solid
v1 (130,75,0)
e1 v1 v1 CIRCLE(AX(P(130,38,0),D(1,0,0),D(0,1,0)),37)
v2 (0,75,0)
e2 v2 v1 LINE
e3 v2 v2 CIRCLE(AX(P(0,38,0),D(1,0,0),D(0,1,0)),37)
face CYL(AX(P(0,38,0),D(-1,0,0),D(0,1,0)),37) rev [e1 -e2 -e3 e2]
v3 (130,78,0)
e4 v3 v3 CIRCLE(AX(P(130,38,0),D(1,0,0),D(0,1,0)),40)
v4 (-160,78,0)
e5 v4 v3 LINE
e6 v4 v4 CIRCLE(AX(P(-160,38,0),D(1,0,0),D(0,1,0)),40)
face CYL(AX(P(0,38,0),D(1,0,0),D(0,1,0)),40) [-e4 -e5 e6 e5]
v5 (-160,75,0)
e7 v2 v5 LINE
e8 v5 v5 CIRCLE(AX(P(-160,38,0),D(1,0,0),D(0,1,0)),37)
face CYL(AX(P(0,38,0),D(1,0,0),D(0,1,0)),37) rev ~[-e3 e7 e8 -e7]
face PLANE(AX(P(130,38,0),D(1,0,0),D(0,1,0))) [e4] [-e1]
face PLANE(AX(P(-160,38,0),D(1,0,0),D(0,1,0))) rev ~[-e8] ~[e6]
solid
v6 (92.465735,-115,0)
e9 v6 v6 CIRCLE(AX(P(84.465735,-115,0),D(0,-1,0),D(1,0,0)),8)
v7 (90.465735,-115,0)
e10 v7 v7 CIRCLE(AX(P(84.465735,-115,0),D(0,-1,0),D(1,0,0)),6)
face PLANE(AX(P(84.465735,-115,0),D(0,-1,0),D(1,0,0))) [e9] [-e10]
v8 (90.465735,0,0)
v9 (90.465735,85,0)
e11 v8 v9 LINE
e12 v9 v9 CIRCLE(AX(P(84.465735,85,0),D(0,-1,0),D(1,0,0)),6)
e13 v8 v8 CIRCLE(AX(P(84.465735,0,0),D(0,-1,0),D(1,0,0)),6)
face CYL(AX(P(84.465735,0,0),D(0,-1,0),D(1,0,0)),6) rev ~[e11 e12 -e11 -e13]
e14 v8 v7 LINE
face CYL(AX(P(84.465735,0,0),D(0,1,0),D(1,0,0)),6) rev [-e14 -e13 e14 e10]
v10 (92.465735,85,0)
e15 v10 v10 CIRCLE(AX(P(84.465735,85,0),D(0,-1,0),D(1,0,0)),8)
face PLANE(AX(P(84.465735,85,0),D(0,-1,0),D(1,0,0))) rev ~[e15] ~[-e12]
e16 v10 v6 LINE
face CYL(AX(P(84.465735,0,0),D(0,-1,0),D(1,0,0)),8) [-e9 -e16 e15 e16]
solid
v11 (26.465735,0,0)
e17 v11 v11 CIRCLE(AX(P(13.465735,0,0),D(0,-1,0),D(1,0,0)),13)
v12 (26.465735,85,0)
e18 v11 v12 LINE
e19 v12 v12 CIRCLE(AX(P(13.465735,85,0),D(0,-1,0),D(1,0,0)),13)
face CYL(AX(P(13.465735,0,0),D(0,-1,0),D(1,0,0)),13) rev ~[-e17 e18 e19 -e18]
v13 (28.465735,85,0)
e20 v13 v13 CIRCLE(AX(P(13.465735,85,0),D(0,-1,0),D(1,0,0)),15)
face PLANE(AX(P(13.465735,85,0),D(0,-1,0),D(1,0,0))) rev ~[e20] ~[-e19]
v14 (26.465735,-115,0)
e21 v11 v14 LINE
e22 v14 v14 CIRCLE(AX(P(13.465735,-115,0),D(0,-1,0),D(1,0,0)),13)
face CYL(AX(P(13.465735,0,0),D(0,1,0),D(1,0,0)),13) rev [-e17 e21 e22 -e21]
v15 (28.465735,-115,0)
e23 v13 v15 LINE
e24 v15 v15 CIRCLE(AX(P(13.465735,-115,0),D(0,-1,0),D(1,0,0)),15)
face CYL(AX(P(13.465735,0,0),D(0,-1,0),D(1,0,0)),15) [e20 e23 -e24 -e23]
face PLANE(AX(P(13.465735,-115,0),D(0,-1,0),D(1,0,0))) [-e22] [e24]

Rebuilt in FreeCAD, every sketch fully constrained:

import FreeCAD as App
import Part
import Sketcher

V = App.Vector

doc = App.newDocument("Part")
body = doc.addObject("PartDesign::Body", "Body")

# Sketch on XZ plane
sketch1 = body.newObject("Sketcher::SketchObject", "Sketch")
sketch1.AttachmentSupport = (doc.getObject("XZ_Plane"), [""])
sketch1.MapMode = "FlatFace"
sketch1.addGeometry([
    Part.Circle(V(13, 0, 0), V(0, 0, 1), 15),
    Part.Circle(V(13, 0, 0), V(0, 0, 1), 13),
], False)
sketch1.addConstraint([
    Sketcher.Constraint("Coincident", 1, 3, 0, 3),
    Sketcher.Constraint("PointOnObject", 0, 3, -1),
    Sketcher.Constraint("Diameter", 0, 30.0),
    Sketcher.Constraint("Diameter", 1, 26.0),
    Sketcher.Constraint("DistanceX", -1, 1, 0, 3, 13.465735),
])
pad1 = body.newObject("PartDesign::Pad", "Pad")
pad1.Profile = sketch1
pad1.Type = "TwoLengths"
pad1.Length = 115
pad1.Length2 = 85
body2 = doc.addObject("PartDesign::Body", "Body001")

# Sketch on XZ plane
sketch2 = body2.newObject("Sketcher::SketchObject", "Sketch001")
sketch2.AttachmentSupport = (doc.getObject("XZ_Plane001"), [""])
sketch2.MapMode = "FlatFace"
sketch2.addGeometry([
    Part.Circle(V(84, 0, 0), V(0, 0, 1), 8),
    Part.Circle(V(84, 0, 0), V(0, 0, 1), 6),
], False)
sketch2.addConstraint([
    Sketcher.Constraint("Coincident", 1, 3, 0, 3),
    Sketcher.Constraint("PointOnObject", 0, 3, -1),
    Sketcher.Constraint("Diameter", 0, 16.0),
    Sketcher.Constraint("Diameter", 1, 12.0),
    Sketcher.Constraint("DistanceX", -1, 1, 0, 3, 84.465735),
])
pad2 = body2.newObject("PartDesign::Pad", "Pad001")
pad2.Profile = sketch2
pad2.Type = "TwoLengths"
pad2.Length = 115
pad2.Length2 = 85
body3 = doc.addObject("PartDesign::Body", "Body002")

# Sketch on YZ plane
sketch3 = body3.newObject("Sketcher::SketchObject", "Sketch002")
sketch3.AttachmentSupport = (doc.getObject("YZ_Plane002"), [""])
sketch3.MapMode = "FlatFace"
sketch3.addGeometry([
    Part.Circle(V(38, 0, 0), V(0, 0, 1), 40),
    Part.Circle(V(38, 0, 0), V(0, 0, 1), 37),
], False)
sketch3.addConstraint([
    Sketcher.Constraint("Coincident", 1, 3, 0, 3),
    Sketcher.Constraint("PointOnObject", 0, 3, -1),
    Sketcher.Constraint("Diameter", 0, 80.0),
    Sketcher.Constraint("Diameter", 1, 74.0),
    Sketcher.Constraint("DistanceX", -1, 1, 0, 3, 38.0),
])
pad3 = body3.newObject("PartDesign::Pad", "Pad002")
pad3.Profile = sketch3
pad3.Type = "TwoLengths"
pad3.Length = 130
pad3.Length2 = 160

doc.recompute()
